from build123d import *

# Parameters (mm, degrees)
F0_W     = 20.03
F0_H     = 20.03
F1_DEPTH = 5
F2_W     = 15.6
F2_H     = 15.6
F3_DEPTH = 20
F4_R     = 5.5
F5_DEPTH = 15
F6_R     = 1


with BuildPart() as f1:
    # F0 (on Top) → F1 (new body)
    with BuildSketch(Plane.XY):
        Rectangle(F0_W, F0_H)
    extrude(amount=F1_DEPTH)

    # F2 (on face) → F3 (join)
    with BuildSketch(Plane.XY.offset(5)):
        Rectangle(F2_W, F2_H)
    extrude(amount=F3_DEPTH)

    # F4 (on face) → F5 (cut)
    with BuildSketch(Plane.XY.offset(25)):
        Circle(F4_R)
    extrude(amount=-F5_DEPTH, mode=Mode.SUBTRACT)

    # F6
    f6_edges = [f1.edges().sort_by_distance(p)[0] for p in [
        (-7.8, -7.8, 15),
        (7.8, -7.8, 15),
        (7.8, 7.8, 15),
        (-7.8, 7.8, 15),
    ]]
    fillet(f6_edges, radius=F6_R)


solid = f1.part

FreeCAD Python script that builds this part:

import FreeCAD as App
import Part
import Sketcher
Q = App.Units.Quantity


def edges_at(feature, points):
    """Names of the edges that pass closest to the given points."""
    edges = feature.Shape.Edges
    near = lambda p: min(range(len(edges)), key=lambda i: edges[i].distToShape(Part.Vertex(*p))[0])
    return sorted({f"Edge{near(p) + 1}" for p in points})

doc = App.newDocument("Part")
body = doc.addObject("PartDesign::Body", "Body")

sketch1 = body.newObject("Sketcher::SketchObject", "Sketch")
sketch1.AttachmentSupport = (doc.getObject("XY_Plane"), [""])
sketch1.MapMode = "FlatFace"
sketch1.addGeometry([
    Part.LineSegment(App.Vector(-10, 10, 0), App.Vector(-10, -10, 0)),
    Part.LineSegment(App.Vector(-10, -10, 0), App.Vector(10, -10, 0)),
    Part.LineSegment(App.Vector(10, -10, 0), App.Vector(10, 10, 0)),
    Part.LineSegment(App.Vector(10, 10, 0), App.Vector(-10, 10, 0)),
], False)
sketch1.addConstraint([
    Sketcher.Constraint("Coincident", 0, 2, 1, 1),
    Sketcher.Constraint("Coincident", 1, 2, 2, 1),
    Sketcher.Constraint("Coincident", 2, 2, 3, 1),
    Sketcher.Constraint("Coincident", 3, 2, 0, 1),
    Sketcher.Constraint("Vertical", 0),
    Sketcher.Constraint("Horizontal", 1),
    Sketcher.Constraint("Vertical", 2),
    Sketcher.Constraint("Horizontal", 3),
    Sketcher.Constraint("Symmetric", 0, 2, 2, 2, -1, 1),
    Sketcher.Constraint("Equal", 3, 0),
    Sketcher.Constraint("DistanceX", 1, 1, 1, 2, Q("20.03 mm")),
])
pad1 = body.newObject("PartDesign::Pad", "Pad")
pad1.Profile = sketch1
pad1.Length = 5

sketch2 = body.newObject("Sketcher::SketchObject", "Sketch001")
sketch2.AttachmentSupport = (doc.getObject("XY_Plane"), [""])
sketch2.MapMode = "FlatFace"
sketch2.AttachmentOffset = App.Placement(App.Vector(0, 0, 5), App.Rotation())
sketch2.addGeometry([
    Part.LineSegment(App.Vector(-8, 8, 0), App.Vector(-8, -8, 0)),
    Part.LineSegment(App.Vector(-8, -8, 0), App.Vector(8, -8, 0)),
    Part.LineSegment(App.Vector(8, -8, 0), App.Vector(8, 8, 0)),
    Part.LineSegment(App.Vector(8, 8, 0), App.Vector(-8, 8, 0)),
], False)
sketch2.addConstraint([
    Sketcher.Constraint("Coincident", 0, 2, 1, 1),
    Sketcher.Constraint("Coincident", 1, 2, 2, 1),
    Sketcher.Constraint("Coincident", 2, 2, 3, 1),
    Sketcher.Constraint("Coincident", 3, 2, 0, 1),
    Sketcher.Constraint("Vertical", 0),
    Sketcher.Constraint("Horizontal", 1),
    Sketcher.Constraint("Vertical", 2),
    Sketcher.Constraint("Horizontal", 3),
    Sketcher.Constraint("Symmetric", 0, 2, 2, 2, -1, 1),
    Sketcher.Constraint("Equal", 3, 0),
    Sketcher.Constraint("DistanceX", 1, 1, 1, 2, Q("15.6 mm")),
])
pad2 = body.newObject("PartDesign::Pad", "Pad001")
pad2.Profile = sketch2
pad2.Length = 20

sketch3 = body.newObject("Sketcher::SketchObject", "Sketch002")
sketch3.AttachmentSupport = (doc.getObject("XY_Plane"), [""])
sketch3.MapMode = "FlatFace"
sketch3.AttachmentOffset = App.Placement(App.Vector(0, 0, 25), App.Rotation())
sketch3.addGeometry(Part.Circle(App.Vector(0, 0, 0), App.Vector(0, 0, 1), 6), False)
sketch3.addConstraint([
    Sketcher.Constraint("Coincident", 0, 3, -1, 1),
    Sketcher.Constraint("Diameter", 0, Q("11 mm")),
])
pocket1 = body.newObject("PartDesign::Pocket", "Pocket")
pocket1.Profile = sketch3
pocket1.Length = 15
doc.recompute()

fillet = body.newObject("PartDesign::Fillet", "Fillet")
fillet.Base = (pocket1, edges_at(pocket1, [
    (-7.8, -7.8, 15),
    (7.8, -7.8, 15),
    (7.8, 7.8, 15),
    (-7.8, 7.8, 15),
]))
fillet.Radius = 1

doc.recompute()
